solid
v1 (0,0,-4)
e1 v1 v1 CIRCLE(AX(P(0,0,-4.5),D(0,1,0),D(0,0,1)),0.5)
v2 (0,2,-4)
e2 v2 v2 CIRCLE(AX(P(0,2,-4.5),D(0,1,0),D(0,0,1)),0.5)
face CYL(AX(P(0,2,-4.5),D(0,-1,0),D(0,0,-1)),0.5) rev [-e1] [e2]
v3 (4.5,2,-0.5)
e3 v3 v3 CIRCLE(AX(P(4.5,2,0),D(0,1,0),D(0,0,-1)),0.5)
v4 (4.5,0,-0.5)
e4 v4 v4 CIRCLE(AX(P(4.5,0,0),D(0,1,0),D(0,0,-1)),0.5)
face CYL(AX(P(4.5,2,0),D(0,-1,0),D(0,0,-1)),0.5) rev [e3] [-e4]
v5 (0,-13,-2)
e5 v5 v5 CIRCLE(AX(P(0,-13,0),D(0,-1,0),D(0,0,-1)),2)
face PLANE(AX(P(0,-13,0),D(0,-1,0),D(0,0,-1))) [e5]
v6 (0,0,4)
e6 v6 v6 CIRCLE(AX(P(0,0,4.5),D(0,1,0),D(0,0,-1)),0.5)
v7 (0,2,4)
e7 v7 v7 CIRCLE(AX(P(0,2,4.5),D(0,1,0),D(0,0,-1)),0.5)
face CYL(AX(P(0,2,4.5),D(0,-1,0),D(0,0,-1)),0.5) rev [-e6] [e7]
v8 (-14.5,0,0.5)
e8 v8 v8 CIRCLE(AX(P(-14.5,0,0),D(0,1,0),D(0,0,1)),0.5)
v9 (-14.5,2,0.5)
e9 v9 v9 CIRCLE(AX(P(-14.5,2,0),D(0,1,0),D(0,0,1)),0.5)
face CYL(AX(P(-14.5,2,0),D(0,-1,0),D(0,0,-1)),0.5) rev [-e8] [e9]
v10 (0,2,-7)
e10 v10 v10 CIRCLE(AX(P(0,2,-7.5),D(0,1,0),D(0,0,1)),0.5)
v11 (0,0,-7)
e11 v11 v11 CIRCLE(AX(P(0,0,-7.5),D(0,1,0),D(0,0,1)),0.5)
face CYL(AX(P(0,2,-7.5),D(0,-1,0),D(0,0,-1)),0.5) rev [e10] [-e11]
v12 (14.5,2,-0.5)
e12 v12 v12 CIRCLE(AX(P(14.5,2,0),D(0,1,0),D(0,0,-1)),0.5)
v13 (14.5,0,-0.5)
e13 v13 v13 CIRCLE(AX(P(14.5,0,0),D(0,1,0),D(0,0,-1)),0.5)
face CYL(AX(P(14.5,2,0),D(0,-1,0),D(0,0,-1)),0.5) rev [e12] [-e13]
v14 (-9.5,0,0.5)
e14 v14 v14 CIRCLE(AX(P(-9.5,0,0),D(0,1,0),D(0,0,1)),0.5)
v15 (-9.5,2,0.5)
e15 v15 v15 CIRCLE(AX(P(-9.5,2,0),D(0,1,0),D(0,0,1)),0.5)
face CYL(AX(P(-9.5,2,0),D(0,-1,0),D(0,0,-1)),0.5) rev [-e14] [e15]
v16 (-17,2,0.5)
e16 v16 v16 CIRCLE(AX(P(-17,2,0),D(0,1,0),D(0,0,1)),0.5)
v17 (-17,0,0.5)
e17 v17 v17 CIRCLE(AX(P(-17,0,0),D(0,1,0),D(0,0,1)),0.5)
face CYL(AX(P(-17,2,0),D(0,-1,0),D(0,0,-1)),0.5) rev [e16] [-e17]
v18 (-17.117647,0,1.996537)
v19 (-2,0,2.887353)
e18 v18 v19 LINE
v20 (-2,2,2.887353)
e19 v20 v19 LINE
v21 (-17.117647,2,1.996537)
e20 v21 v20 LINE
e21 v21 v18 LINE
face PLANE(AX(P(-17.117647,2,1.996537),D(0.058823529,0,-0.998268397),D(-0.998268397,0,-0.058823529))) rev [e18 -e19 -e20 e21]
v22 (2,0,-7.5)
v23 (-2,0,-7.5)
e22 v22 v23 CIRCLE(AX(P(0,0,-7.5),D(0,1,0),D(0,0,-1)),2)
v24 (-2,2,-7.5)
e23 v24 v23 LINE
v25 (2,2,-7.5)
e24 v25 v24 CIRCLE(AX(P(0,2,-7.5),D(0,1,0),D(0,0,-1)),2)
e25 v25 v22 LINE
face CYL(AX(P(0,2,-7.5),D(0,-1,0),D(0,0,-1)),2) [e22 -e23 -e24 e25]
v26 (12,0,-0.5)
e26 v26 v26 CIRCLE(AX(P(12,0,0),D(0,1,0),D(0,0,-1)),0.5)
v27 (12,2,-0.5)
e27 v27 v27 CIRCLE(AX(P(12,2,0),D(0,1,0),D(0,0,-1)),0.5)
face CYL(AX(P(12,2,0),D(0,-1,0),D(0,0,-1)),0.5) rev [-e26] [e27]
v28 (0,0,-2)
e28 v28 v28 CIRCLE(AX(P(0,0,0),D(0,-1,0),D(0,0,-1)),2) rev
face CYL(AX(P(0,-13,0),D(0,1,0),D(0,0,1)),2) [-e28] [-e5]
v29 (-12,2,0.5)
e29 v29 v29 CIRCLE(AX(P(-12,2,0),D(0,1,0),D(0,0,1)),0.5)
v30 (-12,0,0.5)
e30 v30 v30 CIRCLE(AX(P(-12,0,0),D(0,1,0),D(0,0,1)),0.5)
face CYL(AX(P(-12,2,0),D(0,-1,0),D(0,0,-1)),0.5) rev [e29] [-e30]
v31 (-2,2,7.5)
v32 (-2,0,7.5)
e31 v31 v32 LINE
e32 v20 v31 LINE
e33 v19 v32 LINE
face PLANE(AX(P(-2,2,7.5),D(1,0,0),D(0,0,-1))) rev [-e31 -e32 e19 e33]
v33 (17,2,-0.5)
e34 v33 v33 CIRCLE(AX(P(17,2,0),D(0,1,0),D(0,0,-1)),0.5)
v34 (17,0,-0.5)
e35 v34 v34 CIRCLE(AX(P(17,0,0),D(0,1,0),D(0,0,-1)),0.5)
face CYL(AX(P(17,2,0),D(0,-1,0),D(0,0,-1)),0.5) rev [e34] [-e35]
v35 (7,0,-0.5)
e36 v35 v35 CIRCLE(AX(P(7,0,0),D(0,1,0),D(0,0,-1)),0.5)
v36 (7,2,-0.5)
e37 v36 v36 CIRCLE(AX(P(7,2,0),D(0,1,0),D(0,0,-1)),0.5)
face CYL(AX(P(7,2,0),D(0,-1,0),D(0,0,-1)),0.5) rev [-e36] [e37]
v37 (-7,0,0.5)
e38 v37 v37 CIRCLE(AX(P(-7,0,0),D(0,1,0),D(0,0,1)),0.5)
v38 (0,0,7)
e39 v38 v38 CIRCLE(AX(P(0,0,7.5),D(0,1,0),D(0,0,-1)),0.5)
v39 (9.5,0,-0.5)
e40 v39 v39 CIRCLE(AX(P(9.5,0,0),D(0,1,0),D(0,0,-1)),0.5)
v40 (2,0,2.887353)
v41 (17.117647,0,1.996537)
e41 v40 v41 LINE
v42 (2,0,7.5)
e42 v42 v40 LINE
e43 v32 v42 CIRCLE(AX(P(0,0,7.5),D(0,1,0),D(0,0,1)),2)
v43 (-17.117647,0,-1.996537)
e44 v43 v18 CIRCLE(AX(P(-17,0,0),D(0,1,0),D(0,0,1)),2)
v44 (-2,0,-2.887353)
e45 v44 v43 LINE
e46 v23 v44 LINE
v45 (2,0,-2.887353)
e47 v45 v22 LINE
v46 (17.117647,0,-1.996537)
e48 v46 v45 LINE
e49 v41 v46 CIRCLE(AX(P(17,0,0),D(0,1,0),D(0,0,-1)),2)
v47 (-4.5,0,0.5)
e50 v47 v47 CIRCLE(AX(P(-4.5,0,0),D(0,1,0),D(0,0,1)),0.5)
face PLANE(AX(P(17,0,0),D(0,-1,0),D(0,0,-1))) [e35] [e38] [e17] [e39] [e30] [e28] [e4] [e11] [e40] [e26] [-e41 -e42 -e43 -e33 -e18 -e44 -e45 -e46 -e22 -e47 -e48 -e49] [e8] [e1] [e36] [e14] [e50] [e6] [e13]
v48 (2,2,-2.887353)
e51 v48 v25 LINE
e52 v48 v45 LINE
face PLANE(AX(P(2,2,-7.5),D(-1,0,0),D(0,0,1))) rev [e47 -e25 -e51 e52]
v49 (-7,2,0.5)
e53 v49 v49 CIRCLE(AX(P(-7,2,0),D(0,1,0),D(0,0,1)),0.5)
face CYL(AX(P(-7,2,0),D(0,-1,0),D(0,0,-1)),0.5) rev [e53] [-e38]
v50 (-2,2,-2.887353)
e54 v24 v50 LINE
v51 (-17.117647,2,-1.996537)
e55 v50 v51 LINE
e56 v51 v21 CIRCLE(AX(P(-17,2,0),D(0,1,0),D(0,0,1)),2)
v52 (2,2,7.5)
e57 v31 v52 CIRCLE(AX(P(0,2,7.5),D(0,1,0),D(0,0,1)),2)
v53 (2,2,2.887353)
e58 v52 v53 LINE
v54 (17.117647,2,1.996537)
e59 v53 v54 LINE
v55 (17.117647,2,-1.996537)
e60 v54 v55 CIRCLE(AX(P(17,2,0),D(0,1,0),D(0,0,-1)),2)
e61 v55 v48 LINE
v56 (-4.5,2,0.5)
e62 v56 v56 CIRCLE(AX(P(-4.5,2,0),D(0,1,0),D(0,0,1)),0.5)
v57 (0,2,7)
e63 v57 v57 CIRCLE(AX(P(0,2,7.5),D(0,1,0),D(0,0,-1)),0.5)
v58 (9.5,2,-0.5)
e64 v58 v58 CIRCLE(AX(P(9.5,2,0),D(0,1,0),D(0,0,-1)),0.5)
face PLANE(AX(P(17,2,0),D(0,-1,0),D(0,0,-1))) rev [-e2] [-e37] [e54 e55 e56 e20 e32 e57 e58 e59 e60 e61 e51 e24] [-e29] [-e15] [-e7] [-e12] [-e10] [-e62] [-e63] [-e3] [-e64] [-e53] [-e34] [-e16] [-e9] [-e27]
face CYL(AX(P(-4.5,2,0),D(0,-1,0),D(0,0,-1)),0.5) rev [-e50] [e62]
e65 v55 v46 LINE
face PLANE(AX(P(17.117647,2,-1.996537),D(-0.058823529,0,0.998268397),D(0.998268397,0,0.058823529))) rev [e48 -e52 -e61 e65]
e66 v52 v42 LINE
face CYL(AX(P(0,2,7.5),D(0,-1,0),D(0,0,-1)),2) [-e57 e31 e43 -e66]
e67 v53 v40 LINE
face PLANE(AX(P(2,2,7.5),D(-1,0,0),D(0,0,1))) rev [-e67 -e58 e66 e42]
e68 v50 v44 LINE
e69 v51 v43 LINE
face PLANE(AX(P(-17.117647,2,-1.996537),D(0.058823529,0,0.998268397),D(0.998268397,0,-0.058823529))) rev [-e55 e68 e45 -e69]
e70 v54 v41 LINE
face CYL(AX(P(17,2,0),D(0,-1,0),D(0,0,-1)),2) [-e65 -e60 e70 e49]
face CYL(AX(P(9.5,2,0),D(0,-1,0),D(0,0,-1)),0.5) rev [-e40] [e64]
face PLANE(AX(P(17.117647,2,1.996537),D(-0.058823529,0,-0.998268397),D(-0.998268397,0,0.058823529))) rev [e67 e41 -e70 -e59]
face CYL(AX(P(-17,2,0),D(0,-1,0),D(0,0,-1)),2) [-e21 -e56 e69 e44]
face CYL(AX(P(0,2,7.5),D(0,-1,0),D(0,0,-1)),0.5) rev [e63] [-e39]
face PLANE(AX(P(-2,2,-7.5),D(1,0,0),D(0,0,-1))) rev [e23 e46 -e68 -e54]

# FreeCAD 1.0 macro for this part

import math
import FreeCAD as App
import Part
import Sketcher

V = App.Vector

doc = App.newDocument("Part")
params = doc.addObject("Spreadsheet::Sheet", "Params")
for row, (alias, value) in enumerate([
    ("sketch1_diameter", "1 mm"),
    ("sketch1_diameter2", "4 mm"),
    ("pad1_length", "2 mm"),
    ("sketch2_diameter", "4 mm"),
    ("pad2_length", "15 mm"),
], start=1):
    params.set(f"A{row}", alias)
    params.set(f"B{row}", "=" + value)
    params.setAlias(f"B{row}", alias)

body = doc.addObject("PartDesign::Body", "Body")

sketch1 = body.newObject("Sketcher::SketchObject", "Sketch")
sketch1.AttachmentSupport = (doc.getObject("XZ_Plane"), [""])
sketch1.MapMode = "FlatFace"
sketch1.addGeometry(Part.LineSegment(V(2, -2.9, 0), V(2, -7.5, 0)), False)
sketch1.addGeometry(Part.ArcOfCircle(Part.Circle(V(0, -7.5, 0), V(0, 0, 1), 2), math.radians(180), math.radians(360)), False)
sketch1.addGeometry(Part.LineSegment(V(-2, -7.5, 0), V(-2, -2.9, 0)), False)
sketch1.addGeometry(Part.LineSegment(V(-2, -2.9, 0), V(-17.1, -2, 0)), False)
sketch1.addGeometry(Part.ArcOfCircle(Part.Circle(V(-17, 0, 0), V(0, 0, 1), 2), math.radians(93), math.radians(267)), False)
sketch1.addGeometry(Part.LineSegment(V(-17.1, 2, 0), V(-2, 2.9, 0)), False)
sketch1.addGeometry(Part.LineSegment(V(-2, 2.9, 0), V(-2, 7.5, 0)), False)
sketch1.addGeometry(Part.ArcOfCircle(Part.Circle(V(0, 7.5, 0), V(0, 0, 1), 2), math.radians(0), math.radians(180)), False)
sketch1.addGeometry(Part.LineSegment(V(2, 7.5, 0), V(2, 2.9, 0)), False)
sketch1.addGeometry(Part.LineSegment(V(2, 2.9, 0), V(17.1, 2, 0)), False)
sketch1.addGeometry(Part.ArcOfCircle(Part.Circle(V(17, 0, 0), V(0, 0, 1), 2), math.radians(-87), math.radians(87)), False)
sketch1.addGeometry(Part.LineSegment(V(17.1, -2, 0), V(2, -2.9, 0)), False)
sketch1.addGeometry(Part.Circle(V(0, 7.5, 0), V(0, 0, 1), 0.5), False)
sketch1.addGeometry(Part.Circle(V(0, 4.5, 0), V(0, 0, 1), 0.5), False)
sketch1.addGeometry(Part.Circle(V(17, 0, 0), V(0, 0, 1), 0.5), False)
sketch1.addGeometry(Part.Circle(V(14.5, 0, 0), V(0, 0, 1), 0.5), False)
sketch1.addGeometry(Part.Circle(V(12, 0, 0), V(0, 0, 1), 0.5), False)
sketch1.addGeometry(Part.Circle(V(9.5, 0, 0), V(0, 0, 1), 0.5), False)
sketch1.addGeometry(Part.Circle(V(7, 0, 0), V(0, 0, 1), 0.5), False)
sketch1.addGeometry(Part.Circle(V(4.5, 0, 0), V(0, 0, 1), 0.5), False)
sketch1.addGeometry(Part.Circle(V(0, 0, 0), V(0, 0, 1), 2), False)
sketch1.addGeometry(Part.Circle(V(-4.5, 0, 0), V(0, 0, 1), 0.5), False)
sketch1.addGeometry(Part.Circle(V(-7, 0, 0), V(0, 0, 1), 0.5), False)
sketch1.addGeometry(Part.Circle(V(-9.5, 0, 0), V(0, 0, 1), 0.5), False)
sketch1.addGeometry(Part.Circle(V(-12, 0, 0), V(0, 0, 1), 0.5), False)
sketch1.addGeometry(Part.Circle(V(-14.5, 0, 0), V(0, 0, 1), 0.5), False)
sketch1.addGeometry(Part.Circle(V(-17, 0, 0), V(0, 0, 1), 0.5), False)
sketch1.addGeometry(Part.Circle(V(0, -4.5, 0), V(0, 0, 1), 0.5), False)
sketch1.addGeometry(Part.Circle(V(0, -7.5, 0), V(0, 0, 1), 0.5), False)
sketch1.addConstraint(Sketcher.Constraint("Tangent", 0, 2, 1, 2))
sketch1.addConstraint(Sketcher.Constraint("Tangent", 1, 1, 2, 1))
sketch1.addConstraint(Sketcher.Constraint("Coincident", 2, 2, 3, 1))
sketch1.addConstraint(Sketcher.Constraint("Tangent", 3, 2, 4, 2))
sketch1.addConstraint(Sketcher.Constraint("Tangent", 4, 1, 5, 1))
sketch1.addConstraint(Sketcher.Constraint("Coincident", 5, 2, 6, 1))
sketch1.addConstraint(Sketcher.Constraint("Tangent", 6, 2, 7, 2))
sketch1.addConstraint(Sketcher.Constraint("Tangent", 7, 1, 8, 1))
sketch1.addConstraint(Sketcher.Constraint("Coincident", 8, 2, 9, 1))
sketch1.addConstraint(Sketcher.Constraint("Tangent", 9, 2, 10, 2))
sketch1.addConstraint(Sketcher.Constraint("Tangent", 10, 1, 11, 1))
sketch1.addConstraint(Sketcher.Constraint("Coincident", 11, 2, 0, 1))
sketch1.addConstraint(Sketcher.Constraint("Vertical", 0))
sketch1.addConstraint(Sketcher.Constraint("Vertical", 2))
sketch1.addConstraint(Sketcher.Constraint("Vertical", 6))
sketch1.addConstraint(Sketcher.Constraint("Vertical", 8))
sketch1.addConstraint(Sketcher.Constraint("Coincident", 20, 3, -1, 1))
sketch1.addConstraint(Sketcher.Constraint("Coincident", 12, 3, 7, 3))
sketch1.addConstraint(Sketcher.Constraint("Coincident", 14, 3, 10, 3))
sketch1.addConstraint(Sketcher.Constraint("Coincident", 26, 3, 4, 3))
sketch1.addConstraint(Sketcher.Constraint("Coincident", 28, 3, 1, 3))
sketch1.addConstraint(Sketcher.Constraint("Equal", 1, 4))
sketch1.addConstraint(Sketcher.Constraint("Equal", 4, 7))
sketch1.addConstraint(Sketcher.Constraint("Equal", 7, 10))
sketch1.addConstraint(Sketcher.Constraint("Equal", 12, 13))
sketch1.addConstraint(Sketcher.Constraint("Equal", 13, 14))
sketch1.addConstraint(Sketcher.Constraint("Equal", 14, 15))
sketch1.addConstraint(Sketcher.Constraint("Equal", 15, 16))
sketch1.addConstraint(Sketcher.Constraint("Equal", 16, 17))
sketch1.addConstraint(Sketcher.Constraint("Equal", 17, 18))
sketch1.addConstraint(Sketcher.Constraint("Equal", 18, 19))
sketch1.addConstraint(Sketcher.Constraint("Equal", 10, 20))
sketch1.addConstraint(Sketcher.Constraint("Equal", 19, 21))
sketch1.addConstraint(Sketcher.Constraint("Equal", 21, 22))
sketch1.addConstraint(Sketcher.Constraint("Equal", 22, 23))
sketch1.addConstraint(Sketcher.Constraint("Equal", 23, 24))
sketch1.addConstraint(Sketcher.Constraint("Equal", 24, 25))
sketch1.addConstraint(Sketcher.Constraint("Equal", 25, 26))
sketch1.addConstraint(Sketcher.Constraint("Equal", 26, 27))
sketch1.addConstraint(Sketcher.Constraint("Equal", 27, 28))
sketch1.addConstraint(Sketcher.Constraint("Symmetric", 1, 3, 7, 3, -1, 1))
sketch1.addConstraint(Sketcher.Constraint("Symmetric", 4, 3, 10, 3, -1, 1))
sketch1.addConstraint(Sketcher.Constraint("Symmetric", 19, 3, 21, 3, -1, 1))
sketch1.addConstraint(Sketcher.Constraint("Symmetric", 18, 3, 22, 3, -1, 1))
sketch1.addConstraint(Sketcher.Constraint("Symmetric", 17, 3, 23, 3, -1, 1))
sketch1.addConstraint(Sketcher.Constraint("Symmetric", 16, 3, 24, 3, -1, 1))
sketch1.addConstraint(Sketcher.Constraint("Symmetric", 15, 3, 25, 3, -1, 1))
sketch1.addConstraint(Sketcher.Constraint("Symmetric", 13, 3, 27, 3, -1, 1))
sketch1.addConstraint(Sketcher.Constraint("Symmetric", 5, 2, 8, 2, -2))
sketch1.addConstraint(Sketcher.Constraint("Symmetric", 3, 2, 10, 1, -2))
sketch1.addConstraint(Sketcher.Constraint("PointOnObject", 13, 3, -2))
sketch1.addConstraint(Sketcher.Constraint("PointOnObject", 15, 3, -1))
sketch1.addConstraint(Sketcher.Constraint("PointOnObject", 16, 3, -1))
sketch1.addConstraint(Sketcher.Constraint("PointOnObject", 17, 3, -1))
sketch1.addConstraint(Sketcher.Constraint("PointOnObject", 18, 3, -1))
sketch1.addConstraint(Sketcher.Constraint("PointOnObject", 19, 3, -1))
sketch1.addConstraint(Sketcher.Constraint("Parallel", 3, 9))
sketch1.addConstraint(Sketcher.Constraint("Diameter", 12, 1.0))
sketch1.addConstraint(Sketcher.Constraint("Diameter", 20, 4.0))
sketch1.addConstraint(Sketcher.Constraint("DistanceX", 4, 3, -1, 1, 17.0))
sketch1.addConstraint(Sketcher.Constraint("DistanceX", -1, 1, 16, 3, 12.0))
sketch1.addConstraint(Sketcher.Constraint("DistanceX", -1, 1, 18, 3, 7.0))
sketch1.addConstraint(Sketcher.Constraint("DistanceY", 1, 3, 7, 3, 15.0))
sketch1.addConstraint(Sketcher.Constraint("DistanceY", 13, 3, 7, 3, 3.0))
sketch1.addConstraint(Sketcher.Constraint("DistanceX", 17, 3, 15, 3, 5.0))
sketch1.addConstraint(Sketcher.Constraint("DistanceX", 19, 3, 17, 3, 5.0))
sketch1.addConstraint(Sketcher.Constraint("DistanceX", -1, 1, 15, 3, 14.5))
sketch1.addConstraint(Sketcher.Constraint("Distance", 3, 15.14387))
sketch1.setExpression("Constraints[57]", "Params.sketch1_diameter")
sketch1.setExpression("Constraints[58]", "Params.sketch1_diameter2")
pad1 = body.newObject("PartDesign::Pad", "Pad")
pad1.Profile = sketch1
pad1.setExpression("Length", "Params.pad1_length")
pad1.Reversed = True

sketch2 = body.newObject("Sketcher::SketchObject", "Sketch001")
sketch2.AttachmentSupport = (doc.getObject("XZ_Plane"), [""])
sketch2.MapMode = "FlatFace"
sketch2.AttachmentOffset = App.Placement(V(0, 0, -2), App.Rotation())
sketch2.addGeometry(Part.Circle(V(0, 0, 0), V(0, 0, 1), 2), False)
sketch2.addConstraint(Sketcher.Constraint("Coincident", 0, 3, -1, 1))
sketch2.addConstraint(Sketcher.Constraint("Diameter", 0, 4.0))
sketch2.setExpression("Constraints[1]", "Params.sketch2_diameter")
pad2 = body.newObject("PartDesign::Pad", "Pad001")
pad2.Profile = sketch2
pad2.setExpression("Length", "Params.pad2_length")

doc.recompute()
